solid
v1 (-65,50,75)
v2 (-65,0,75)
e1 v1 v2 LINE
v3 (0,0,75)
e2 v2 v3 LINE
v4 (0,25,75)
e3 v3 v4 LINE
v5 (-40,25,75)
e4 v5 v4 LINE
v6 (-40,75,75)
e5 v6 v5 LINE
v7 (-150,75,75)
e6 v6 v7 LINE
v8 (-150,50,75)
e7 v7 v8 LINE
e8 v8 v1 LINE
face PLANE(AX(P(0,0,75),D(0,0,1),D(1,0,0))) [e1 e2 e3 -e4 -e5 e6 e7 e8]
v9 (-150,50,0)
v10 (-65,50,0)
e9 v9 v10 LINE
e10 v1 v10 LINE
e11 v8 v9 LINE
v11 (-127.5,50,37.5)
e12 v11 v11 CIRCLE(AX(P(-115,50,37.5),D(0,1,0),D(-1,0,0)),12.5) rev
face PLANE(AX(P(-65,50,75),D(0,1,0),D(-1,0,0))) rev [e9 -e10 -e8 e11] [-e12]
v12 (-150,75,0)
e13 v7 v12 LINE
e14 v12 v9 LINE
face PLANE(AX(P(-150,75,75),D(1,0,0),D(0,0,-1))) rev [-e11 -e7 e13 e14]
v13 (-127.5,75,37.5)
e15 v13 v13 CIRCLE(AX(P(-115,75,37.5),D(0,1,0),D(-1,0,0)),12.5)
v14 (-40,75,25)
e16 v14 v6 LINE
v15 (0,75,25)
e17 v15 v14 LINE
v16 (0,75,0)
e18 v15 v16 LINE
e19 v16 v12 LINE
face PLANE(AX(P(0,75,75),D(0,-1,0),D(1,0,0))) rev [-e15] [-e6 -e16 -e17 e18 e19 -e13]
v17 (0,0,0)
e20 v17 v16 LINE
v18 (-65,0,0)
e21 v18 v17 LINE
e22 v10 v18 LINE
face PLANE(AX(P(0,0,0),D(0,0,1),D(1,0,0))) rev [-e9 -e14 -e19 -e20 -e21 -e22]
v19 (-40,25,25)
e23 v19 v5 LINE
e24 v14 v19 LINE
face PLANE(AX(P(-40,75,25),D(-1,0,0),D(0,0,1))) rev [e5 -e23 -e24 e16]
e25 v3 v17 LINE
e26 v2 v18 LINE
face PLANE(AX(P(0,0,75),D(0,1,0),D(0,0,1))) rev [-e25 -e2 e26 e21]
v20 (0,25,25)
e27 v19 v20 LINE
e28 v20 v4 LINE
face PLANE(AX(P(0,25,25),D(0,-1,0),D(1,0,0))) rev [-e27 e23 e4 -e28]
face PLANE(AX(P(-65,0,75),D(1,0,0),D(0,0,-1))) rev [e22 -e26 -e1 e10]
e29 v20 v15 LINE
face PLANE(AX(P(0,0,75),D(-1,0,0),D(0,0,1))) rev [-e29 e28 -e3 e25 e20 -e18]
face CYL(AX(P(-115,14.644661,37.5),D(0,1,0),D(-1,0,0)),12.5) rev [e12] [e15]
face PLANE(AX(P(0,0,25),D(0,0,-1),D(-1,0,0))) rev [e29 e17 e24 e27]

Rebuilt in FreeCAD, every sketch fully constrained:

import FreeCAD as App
import Part
import Sketcher
from FreeCAD import Vector
Q = App.Units.Quantity

doc = App.newDocument("Part")
body = doc.addObject("PartDesign::Body", "Body")

# Sketch on XY plane
sketch1 = body.newObject("Sketcher::SketchObject", "Sketch")
sketch1.AttachmentSupport = (doc.getObject("XY_Plane"), [""])
sketch1.MapMode = "FlatFace"
sketch1.addGeometry([
    Part.LineSegment(Vector(-65, 0, 0), Vector(0, 0, 0)),  # 0
    Part.LineSegment(Vector(0, 0, 0), Vector(0, 75, 0)),  # 1
    Part.LineSegment(Vector(0, 75, 0), Vector(-150, 75, 0)),  # 2
    Part.LineSegment(Vector(-150, 75, 0), Vector(-150, 50, 0)),  # 3
    Part.LineSegment(Vector(-150, 50, 0), Vector(-65, 50, 0)),  # 4
    Part.LineSegment(Vector(-65, 50, 0), Vector(-65, 0, 0)),  # 5
], False)
sketch1.addConstraint([
    Sketcher.Constraint("Coincident", 0, 2, 1, 1),
    Sketcher.Constraint("Coincident", 1, 2, 2, 1),
    Sketcher.Constraint("Coincident", 2, 2, 3, 1),
    Sketcher.Constraint("Coincident", 3, 2, 4, 1),
    Sketcher.Constraint("Coincident", 4, 2, 5, 1),
    Sketcher.Constraint("Coincident", 5, 2, 0, 1),
    Sketcher.Constraint("Horizontal", 0),
    Sketcher.Constraint("Vertical", 1),
    Sketcher.Constraint("Horizontal", 2),
    Sketcher.Constraint("Vertical", 3),
    Sketcher.Constraint("Horizontal", 4),
    Sketcher.Constraint("Vertical", 5),
    Sketcher.Constraint("Coincident", 0, 2, -1, 1),
    Sketcher.Constraint("DistanceX", 0, 1, 0, 2, Q("65 mm")),
    Sketcher.Constraint("DistanceX", 2, 2, 2, 1, Q("150 mm")),
    Sketcher.Constraint("DistanceY", 1, 1, 1, 2, Q("75 mm")),
    Sketcher.Constraint("DistanceY", 3, 2, 3, 1, Q("25 mm")),
])
pad1 = body.newObject("PartDesign::Pad", "Pad")
pad1.Profile = sketch1
pad1.Length = 75

# Sketch on XY plane
sketch2 = body.newObject("Sketcher::SketchObject", "Sketch001")
sketch2.AttachmentSupport = (doc.getObject("XY_Plane"), [""])
sketch2.MapMode = "FlatFace"
sketch2.AttachmentOffset = App.Placement(Vector(0, 0, 75), App.Rotation())
sketch2.addGeometry([
    Part.LineSegment(Vector(-40, 75, 0), Vector(-40, 25, 0)),
    Part.LineSegment(Vector(-40, 25, 0), Vector(0, 25, 0)),
    Part.LineSegment(Vector(0, 25, 0), Vector(0, 75, 0)),
    Part.LineSegment(Vector(0, 75, 0), Vector(-40, 75, 0)),
], False)
sketch2.addConstraint([
    Sketcher.Constraint("Coincident", 0, 2, 1, 1),
    Sketcher.Constraint("Coincident", 1, 2, 2, 1),
    Sketcher.Constraint("Coincident", 2, 2, 3, 1),
    Sketcher.Constraint("Coincident", 3, 2, 0, 1),
    Sketcher.Constraint("Vertical", 0),
    Sketcher.Constraint("Horizontal", 1),
    Sketcher.Constraint("Vertical", 2),
    Sketcher.Constraint("Horizontal", 3),
    Sketcher.Constraint("PointOnObject", 1, 2, -2),
    Sketcher.Constraint("DistanceX", 1, 1, 1, 2, Q("40 mm")),
    Sketcher.Constraint("DistanceY", 0, 2, 0, 1, Q("50 mm")),
    Sketcher.Constraint("DistanceY", -1, 1, 0, 2, Q("25 mm")),
])
pocket1 = body.newObject("PartDesign::Pocket", "Pocket")
pocket1.Profile = sketch2
pocket1.Length = 50

# Sketch on XZ plane
sketch3 = body.newObject("Sketcher::SketchObject", "Sketch002")
sketch3.AttachmentSupport = (doc.getObject("XZ_Plane"), [""])
sketch3.MapMode = "FlatFace"
sketch3.AttachmentOffset = App.Placement(Vector(0, 0, -75), App.Rotation())
sketch3.addGeometry(Part.Circle(Vector(-115, 37.5, 0), Vector(0, 0, 1), 12.5), False)
sketch3.addConstraint([
    Sketcher.Constraint("Diameter", 0, Q("25 mm")),
    Sketcher.Constraint("DistanceX", 0, 3, -1, 1, Q("115 mm")),
    Sketcher.Constraint("DistanceY", -1, 1, 0, 3, Q("37.5 mm")),
])
pocket2 = body.newObject("PartDesign::Pocket", "Pocket001")
pocket2.Profile = sketch3
pocket2.Length = 25
pocket2.Reversed = True

doc.recompute()
